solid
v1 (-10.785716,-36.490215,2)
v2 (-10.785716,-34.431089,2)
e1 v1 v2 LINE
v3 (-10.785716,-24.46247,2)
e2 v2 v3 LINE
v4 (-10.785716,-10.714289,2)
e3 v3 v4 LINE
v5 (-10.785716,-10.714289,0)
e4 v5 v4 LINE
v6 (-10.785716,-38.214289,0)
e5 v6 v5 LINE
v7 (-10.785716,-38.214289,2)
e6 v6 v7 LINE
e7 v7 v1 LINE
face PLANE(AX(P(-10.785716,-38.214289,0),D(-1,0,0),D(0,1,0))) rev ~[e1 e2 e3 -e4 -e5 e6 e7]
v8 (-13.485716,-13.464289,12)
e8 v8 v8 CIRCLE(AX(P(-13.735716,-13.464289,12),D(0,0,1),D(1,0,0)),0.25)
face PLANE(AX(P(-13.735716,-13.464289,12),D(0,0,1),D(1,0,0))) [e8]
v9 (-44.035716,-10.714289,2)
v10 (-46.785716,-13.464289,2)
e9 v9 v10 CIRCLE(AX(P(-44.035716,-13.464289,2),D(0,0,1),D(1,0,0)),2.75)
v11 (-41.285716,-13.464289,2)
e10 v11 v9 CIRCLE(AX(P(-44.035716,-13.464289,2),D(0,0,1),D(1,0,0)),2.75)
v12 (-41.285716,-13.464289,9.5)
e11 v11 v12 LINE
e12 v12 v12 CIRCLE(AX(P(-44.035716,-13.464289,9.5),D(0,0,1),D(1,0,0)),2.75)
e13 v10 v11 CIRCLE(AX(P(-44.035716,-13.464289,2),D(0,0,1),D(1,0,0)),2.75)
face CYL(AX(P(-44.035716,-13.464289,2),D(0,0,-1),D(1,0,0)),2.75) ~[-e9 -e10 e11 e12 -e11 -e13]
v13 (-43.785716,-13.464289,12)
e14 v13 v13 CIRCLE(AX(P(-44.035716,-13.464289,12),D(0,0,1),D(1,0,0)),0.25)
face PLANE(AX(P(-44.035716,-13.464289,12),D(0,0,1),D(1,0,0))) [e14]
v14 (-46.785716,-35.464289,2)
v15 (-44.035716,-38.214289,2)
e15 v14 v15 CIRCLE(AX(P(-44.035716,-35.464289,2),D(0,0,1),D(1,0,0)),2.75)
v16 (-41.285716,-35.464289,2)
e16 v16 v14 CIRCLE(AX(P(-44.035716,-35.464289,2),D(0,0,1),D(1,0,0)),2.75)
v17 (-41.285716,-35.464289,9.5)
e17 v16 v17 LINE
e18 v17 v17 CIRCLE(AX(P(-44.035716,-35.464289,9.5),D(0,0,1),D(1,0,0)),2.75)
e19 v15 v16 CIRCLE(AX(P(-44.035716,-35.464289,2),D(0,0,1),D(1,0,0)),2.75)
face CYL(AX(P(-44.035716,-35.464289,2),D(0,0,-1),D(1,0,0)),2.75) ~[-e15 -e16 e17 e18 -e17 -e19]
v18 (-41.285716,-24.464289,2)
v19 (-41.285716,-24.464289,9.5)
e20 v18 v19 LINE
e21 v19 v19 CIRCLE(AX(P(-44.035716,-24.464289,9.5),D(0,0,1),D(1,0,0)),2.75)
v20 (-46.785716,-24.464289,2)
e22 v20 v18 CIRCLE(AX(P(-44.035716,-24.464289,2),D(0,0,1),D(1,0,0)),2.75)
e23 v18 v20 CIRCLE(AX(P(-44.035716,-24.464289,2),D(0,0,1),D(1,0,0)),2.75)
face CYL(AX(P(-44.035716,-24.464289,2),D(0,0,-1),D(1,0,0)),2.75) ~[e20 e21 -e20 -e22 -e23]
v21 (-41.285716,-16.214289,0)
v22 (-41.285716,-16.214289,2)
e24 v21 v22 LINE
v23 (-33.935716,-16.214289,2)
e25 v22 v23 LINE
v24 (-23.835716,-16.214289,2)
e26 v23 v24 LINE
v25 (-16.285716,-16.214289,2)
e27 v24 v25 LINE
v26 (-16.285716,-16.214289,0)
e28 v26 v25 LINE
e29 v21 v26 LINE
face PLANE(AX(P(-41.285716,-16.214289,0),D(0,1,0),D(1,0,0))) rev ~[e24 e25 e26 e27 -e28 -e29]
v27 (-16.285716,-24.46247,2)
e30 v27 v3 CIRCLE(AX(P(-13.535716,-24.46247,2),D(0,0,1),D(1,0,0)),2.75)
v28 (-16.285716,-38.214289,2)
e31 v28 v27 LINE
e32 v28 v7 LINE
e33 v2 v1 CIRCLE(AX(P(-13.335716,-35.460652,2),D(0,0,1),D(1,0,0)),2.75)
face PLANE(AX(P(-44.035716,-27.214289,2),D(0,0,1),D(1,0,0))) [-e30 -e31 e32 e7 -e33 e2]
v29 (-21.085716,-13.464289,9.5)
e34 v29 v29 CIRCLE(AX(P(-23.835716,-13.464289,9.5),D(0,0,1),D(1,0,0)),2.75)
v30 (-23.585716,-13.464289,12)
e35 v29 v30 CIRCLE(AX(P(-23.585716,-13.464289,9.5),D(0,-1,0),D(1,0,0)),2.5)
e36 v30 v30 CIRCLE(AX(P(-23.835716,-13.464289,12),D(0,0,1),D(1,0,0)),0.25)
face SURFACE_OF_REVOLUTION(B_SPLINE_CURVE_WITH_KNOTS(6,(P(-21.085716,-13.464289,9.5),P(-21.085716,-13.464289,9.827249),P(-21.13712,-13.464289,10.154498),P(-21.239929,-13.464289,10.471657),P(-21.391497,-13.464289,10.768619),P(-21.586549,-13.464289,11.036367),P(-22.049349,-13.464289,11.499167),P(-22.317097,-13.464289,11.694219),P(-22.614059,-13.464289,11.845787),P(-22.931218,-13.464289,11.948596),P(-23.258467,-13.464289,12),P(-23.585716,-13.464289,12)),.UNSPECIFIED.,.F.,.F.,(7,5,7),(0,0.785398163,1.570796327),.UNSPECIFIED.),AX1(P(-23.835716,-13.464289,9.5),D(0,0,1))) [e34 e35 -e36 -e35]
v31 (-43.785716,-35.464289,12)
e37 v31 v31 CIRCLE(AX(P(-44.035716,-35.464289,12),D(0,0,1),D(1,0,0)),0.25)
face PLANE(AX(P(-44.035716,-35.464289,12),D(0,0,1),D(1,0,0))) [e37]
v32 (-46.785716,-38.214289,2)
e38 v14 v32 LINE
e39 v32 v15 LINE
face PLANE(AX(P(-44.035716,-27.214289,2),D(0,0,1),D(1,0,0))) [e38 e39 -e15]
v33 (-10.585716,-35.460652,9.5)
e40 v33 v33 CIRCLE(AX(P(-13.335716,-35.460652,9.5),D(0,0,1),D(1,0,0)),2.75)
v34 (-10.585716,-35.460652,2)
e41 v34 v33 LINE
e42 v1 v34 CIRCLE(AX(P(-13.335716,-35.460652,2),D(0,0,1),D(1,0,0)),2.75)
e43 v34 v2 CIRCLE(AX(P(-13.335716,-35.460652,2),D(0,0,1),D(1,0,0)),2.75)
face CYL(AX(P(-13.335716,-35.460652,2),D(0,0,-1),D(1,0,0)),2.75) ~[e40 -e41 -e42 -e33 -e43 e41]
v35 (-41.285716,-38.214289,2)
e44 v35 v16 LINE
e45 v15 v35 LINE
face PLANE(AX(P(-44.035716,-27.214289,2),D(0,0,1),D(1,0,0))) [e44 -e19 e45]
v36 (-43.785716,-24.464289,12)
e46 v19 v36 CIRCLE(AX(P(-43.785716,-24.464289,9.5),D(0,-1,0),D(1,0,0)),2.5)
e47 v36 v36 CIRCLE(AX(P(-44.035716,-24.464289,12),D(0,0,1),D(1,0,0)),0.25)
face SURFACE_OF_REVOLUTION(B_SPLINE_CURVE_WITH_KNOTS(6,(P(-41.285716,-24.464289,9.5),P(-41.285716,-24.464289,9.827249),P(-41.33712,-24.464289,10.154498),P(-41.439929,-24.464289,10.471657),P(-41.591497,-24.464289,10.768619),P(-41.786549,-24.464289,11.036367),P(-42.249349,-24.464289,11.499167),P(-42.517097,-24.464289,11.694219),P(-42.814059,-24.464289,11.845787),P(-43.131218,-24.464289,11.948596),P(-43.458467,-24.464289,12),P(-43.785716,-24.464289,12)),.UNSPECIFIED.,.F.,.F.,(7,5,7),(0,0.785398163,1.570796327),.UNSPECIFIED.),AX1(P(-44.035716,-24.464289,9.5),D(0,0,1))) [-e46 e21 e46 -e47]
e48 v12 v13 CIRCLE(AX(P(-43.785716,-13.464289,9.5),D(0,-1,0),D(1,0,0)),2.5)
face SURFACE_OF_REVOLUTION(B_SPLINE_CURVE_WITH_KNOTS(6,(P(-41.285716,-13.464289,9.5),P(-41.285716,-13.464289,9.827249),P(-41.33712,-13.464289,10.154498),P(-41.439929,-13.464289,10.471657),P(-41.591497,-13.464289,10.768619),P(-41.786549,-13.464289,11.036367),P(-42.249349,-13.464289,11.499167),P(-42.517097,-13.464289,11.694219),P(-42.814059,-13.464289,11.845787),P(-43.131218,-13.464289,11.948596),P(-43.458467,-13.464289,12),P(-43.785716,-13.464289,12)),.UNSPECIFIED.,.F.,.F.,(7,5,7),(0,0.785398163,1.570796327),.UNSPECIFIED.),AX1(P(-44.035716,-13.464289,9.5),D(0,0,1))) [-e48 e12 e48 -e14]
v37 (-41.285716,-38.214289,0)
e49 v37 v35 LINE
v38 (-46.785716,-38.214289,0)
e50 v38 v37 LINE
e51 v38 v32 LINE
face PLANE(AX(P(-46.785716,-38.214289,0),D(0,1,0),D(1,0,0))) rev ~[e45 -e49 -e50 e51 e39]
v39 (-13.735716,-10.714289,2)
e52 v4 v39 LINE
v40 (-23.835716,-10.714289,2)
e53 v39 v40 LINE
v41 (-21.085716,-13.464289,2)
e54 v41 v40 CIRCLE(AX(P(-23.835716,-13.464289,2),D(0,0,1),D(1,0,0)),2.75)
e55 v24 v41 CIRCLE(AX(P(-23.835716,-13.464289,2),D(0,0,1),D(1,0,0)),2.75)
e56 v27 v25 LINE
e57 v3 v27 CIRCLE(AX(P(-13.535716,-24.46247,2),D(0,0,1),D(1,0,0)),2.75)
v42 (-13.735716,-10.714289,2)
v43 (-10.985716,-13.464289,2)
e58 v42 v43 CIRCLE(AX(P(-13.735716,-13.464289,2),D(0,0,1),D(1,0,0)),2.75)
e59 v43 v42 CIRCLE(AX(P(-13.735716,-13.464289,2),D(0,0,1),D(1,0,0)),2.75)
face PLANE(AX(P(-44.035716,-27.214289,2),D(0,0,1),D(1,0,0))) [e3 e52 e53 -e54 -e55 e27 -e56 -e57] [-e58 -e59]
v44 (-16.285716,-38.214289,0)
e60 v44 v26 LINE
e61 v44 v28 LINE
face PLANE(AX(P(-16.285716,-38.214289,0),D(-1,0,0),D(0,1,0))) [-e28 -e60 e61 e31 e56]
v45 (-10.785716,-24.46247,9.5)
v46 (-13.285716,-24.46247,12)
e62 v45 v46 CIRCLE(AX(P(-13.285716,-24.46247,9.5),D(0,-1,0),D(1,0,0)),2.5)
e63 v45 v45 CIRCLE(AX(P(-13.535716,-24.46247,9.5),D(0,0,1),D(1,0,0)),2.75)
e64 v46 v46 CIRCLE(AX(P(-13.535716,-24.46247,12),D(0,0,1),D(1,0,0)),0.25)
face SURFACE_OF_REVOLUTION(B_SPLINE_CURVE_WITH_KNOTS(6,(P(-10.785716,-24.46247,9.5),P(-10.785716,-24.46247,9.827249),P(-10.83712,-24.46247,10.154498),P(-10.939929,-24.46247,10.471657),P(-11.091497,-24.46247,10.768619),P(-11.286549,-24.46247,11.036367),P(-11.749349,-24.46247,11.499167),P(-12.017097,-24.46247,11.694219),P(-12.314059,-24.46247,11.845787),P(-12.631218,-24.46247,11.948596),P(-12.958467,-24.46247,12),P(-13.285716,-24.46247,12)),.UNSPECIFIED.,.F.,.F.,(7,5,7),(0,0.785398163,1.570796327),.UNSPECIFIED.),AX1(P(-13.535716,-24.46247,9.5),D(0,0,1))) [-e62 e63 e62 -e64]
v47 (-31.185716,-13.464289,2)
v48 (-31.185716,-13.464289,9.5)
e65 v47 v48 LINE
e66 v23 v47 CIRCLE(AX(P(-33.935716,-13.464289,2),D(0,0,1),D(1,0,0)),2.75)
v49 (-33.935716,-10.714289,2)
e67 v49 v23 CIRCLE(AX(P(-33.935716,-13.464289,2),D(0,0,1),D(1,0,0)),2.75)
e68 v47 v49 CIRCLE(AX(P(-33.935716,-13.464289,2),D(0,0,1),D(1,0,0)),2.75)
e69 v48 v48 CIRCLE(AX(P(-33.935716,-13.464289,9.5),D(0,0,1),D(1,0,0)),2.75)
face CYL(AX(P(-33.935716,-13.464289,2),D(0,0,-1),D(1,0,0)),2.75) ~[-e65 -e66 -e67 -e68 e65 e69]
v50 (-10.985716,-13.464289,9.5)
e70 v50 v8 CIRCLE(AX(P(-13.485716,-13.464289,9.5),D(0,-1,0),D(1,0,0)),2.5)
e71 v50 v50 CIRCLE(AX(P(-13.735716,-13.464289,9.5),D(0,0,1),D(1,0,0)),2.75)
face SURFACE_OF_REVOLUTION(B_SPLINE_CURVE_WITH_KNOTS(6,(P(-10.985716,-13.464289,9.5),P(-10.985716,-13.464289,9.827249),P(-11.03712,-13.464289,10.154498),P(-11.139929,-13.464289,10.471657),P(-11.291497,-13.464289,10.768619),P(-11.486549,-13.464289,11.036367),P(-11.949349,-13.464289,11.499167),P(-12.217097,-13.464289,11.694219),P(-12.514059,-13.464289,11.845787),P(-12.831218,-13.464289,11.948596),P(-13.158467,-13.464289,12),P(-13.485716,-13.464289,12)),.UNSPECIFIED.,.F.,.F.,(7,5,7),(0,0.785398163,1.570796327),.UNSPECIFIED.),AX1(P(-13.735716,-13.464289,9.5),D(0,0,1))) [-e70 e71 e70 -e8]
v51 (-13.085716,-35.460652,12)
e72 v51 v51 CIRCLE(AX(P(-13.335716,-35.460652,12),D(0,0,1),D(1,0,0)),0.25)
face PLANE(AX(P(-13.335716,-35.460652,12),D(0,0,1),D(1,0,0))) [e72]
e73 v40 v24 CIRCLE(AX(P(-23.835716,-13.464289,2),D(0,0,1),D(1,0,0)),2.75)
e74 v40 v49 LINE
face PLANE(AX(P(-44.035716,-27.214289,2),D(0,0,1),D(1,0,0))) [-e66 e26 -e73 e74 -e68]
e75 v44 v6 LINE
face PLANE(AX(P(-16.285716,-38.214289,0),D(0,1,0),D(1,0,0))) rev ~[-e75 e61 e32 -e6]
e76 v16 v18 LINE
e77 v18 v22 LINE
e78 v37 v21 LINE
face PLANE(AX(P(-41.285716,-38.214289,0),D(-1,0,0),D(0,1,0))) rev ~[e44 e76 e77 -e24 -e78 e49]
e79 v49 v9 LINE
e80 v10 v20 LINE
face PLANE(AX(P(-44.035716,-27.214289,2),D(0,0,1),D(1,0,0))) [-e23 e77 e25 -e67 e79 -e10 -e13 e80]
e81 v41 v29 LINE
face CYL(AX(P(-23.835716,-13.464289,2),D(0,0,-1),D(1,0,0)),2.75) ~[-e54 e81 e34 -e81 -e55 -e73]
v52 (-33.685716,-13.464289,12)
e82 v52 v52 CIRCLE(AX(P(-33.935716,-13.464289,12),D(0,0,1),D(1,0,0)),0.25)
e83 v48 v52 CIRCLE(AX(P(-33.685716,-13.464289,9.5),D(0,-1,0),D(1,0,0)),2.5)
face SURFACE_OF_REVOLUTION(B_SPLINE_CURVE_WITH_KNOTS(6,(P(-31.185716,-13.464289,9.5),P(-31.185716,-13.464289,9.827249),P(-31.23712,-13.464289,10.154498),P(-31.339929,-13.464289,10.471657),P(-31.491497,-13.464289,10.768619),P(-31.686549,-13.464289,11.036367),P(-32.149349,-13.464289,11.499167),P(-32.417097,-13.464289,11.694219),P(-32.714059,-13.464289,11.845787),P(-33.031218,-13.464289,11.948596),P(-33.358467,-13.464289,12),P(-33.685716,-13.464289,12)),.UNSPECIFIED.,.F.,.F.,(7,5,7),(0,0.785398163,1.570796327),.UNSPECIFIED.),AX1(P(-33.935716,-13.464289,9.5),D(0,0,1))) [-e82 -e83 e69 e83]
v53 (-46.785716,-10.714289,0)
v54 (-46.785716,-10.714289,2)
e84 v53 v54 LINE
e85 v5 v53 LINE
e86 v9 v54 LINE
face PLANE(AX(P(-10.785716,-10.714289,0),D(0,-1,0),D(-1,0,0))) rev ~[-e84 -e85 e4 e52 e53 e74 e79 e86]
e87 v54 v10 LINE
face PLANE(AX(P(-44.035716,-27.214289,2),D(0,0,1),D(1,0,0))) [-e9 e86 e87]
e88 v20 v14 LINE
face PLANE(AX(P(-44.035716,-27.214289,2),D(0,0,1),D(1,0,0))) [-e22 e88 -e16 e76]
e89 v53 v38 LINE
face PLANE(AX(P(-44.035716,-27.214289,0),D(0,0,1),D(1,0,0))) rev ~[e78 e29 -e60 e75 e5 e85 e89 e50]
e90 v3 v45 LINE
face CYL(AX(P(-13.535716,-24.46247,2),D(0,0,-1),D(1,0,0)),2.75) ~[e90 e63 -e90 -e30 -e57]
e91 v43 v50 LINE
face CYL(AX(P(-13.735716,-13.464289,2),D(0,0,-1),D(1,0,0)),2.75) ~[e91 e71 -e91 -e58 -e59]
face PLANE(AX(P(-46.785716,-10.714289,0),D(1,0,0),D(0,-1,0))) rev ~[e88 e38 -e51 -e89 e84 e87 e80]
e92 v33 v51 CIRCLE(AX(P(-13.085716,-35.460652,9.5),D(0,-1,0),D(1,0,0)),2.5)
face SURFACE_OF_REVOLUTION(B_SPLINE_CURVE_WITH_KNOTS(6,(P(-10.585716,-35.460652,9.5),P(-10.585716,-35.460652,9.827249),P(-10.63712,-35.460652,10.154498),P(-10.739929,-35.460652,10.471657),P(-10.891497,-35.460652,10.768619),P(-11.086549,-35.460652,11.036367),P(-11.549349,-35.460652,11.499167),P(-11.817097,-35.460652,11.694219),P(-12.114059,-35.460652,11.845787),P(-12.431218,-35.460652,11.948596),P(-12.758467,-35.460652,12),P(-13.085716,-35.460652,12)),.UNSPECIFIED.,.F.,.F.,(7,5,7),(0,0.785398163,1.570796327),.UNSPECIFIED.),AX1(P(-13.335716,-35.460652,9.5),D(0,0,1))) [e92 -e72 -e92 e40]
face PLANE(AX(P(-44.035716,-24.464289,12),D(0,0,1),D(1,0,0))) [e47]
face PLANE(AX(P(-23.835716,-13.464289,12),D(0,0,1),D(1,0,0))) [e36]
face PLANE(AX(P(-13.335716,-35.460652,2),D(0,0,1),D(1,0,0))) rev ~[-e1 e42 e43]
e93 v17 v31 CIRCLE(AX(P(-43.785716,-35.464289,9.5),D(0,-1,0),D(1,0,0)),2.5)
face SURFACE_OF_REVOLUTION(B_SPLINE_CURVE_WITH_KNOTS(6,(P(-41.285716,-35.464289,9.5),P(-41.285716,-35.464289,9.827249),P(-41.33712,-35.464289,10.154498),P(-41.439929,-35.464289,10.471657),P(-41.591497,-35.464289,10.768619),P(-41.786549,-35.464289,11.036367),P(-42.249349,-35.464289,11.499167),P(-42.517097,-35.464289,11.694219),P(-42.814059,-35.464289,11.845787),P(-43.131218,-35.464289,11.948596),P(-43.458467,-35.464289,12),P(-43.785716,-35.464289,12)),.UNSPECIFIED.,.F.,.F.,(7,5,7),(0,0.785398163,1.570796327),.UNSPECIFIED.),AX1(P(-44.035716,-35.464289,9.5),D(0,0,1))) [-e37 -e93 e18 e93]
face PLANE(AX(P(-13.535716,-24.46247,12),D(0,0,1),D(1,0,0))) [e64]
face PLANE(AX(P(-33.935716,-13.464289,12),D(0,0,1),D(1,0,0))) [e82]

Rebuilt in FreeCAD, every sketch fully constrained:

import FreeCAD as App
import Part
import Sketcher
Q = App.Units.Quantity


def edges_at(feature, points):
    """Names of the edges that pass closest to the given points."""
    edges = feature.Shape.Edges
    near = lambda p: min(range(len(edges)), key=lambda i: edges[i].distToShape(Part.Vertex(*p))[0])
    return sorted({f"Edge{near(p) + 1}" for p in points})

doc = App.newDocument("Part")
body = doc.addObject("PartDesign::Body", "Body")

# Sketch on XY plane
sketch1 = body.newObject("Sketcher::SketchObject", "Sketch")
sketch1.AttachmentSupport = (doc.getObject("XY_Plane"), [""])
sketch1.MapMode = "FlatFace"
sketch1.addGeometry([
    Part.LineSegment(App.Vector(-47, -38, 0), App.Vector(-41, -38, 0)),  # 0
    Part.LineSegment(App.Vector(-41, -38, 0), App.Vector(-41, -16, 0)),  # 1
    Part.LineSegment(App.Vector(-41, -16, 0), App.Vector(-16, -16, 0)),  # 2
    Part.LineSegment(App.Vector(-16, -16, 0), App.Vector(-16, -38, 0)),  # 3
    Part.LineSegment(App.Vector(-16, -38, 0), App.Vector(-11, -38, 0)),  # 4
    Part.LineSegment(App.Vector(-11, -38, 0), App.Vector(-11, -11, 0)),  # 5
    Part.LineSegment(App.Vector(-11, -11, 0), App.Vector(-47, -11, 0)),  # 6
    Part.LineSegment(App.Vector(-47, -11, 0), App.Vector(-47, -38, 0)),  # 7
], False)
sketch1.addConstraint([
    Sketcher.Constraint("Coincident", 0, 2, 1, 1),
    Sketcher.Constraint("Coincident", 1, 2, 2, 1),
    Sketcher.Constraint("Coincident", 2, 2, 3, 1),
    Sketcher.Constraint("Coincident", 3, 2, 4, 1),
    Sketcher.Constraint("Coincident", 4, 2, 5, 1),
    Sketcher.Constraint("Coincident", 5, 2, 6, 1),
    Sketcher.Constraint("Coincident", 6, 2, 7, 1),
    Sketcher.Constraint("Coincident", 7, 2, 0, 1),
    Sketcher.Constraint("Horizontal", 0),
    Sketcher.Constraint("Vertical", 1),
    Sketcher.Constraint("Horizontal", 2),
    Sketcher.Constraint("Vertical", 3),
    Sketcher.Constraint("Horizontal", 4),
    Sketcher.Constraint("Vertical", 5),
    Sketcher.Constraint("Horizontal", 6),
    Sketcher.Constraint("Vertical", 7),
    Sketcher.Constraint("Horizontal", 0, 2, 3, 2),
    Sketcher.Constraint("Equal", 0, 4),
    Sketcher.Constraint("DistanceX", 2, 1, 2, 2, Q("25 mm")),
    Sketcher.Constraint("DistanceX", 6, 2, 6, 1, Q("36 mm")),
    Sketcher.Constraint("DistanceY", 1, 1, 1, 2, Q("22 mm")),
    Sketcher.Constraint("DistanceY", 5, 1, 5, 2, Q("27.5 mm")),
    Sketcher.Constraint("DistanceY", 0, 2, -1, 1, Q("38.214289 mm")),
    Sketcher.Constraint("DistanceX", 0, 2, -1, 1, Q("41.285716 mm")),
])
pad1 = body.newObject("PartDesign::Pad", "Pad")
pad1.Profile = sketch1
pad1.Length = 2

# Sketch on XY plane
sketch2 = body.newObject("Sketcher::SketchObject", "Sketch001")
sketch2.AttachmentSupport = (doc.getObject("XY_Plane"), [""])
sketch2.MapMode = "FlatFace"
sketch2.AttachmentOffset = App.Placement(App.Vector(0, 0, 2), App.Rotation())
sketch2.addGeometry([
    Part.Circle(App.Vector(-44, -35.5, 0), App.Vector(0, 0, 1), 2.8),  # 0
    Part.Circle(App.Vector(-44, -24.5, 0), App.Vector(0, 0, 1), 2.8),  # 1
    Part.Circle(App.Vector(-44, -13.5, 0), App.Vector(0, 0, 1), 2.8),  # 2
    Part.Circle(App.Vector(-33.9, -13.5, 0), App.Vector(0, 0, 1), 2.8),  # 3
    Part.Circle(App.Vector(-23.8, -13.5, 0), App.Vector(0, 0, 1), 2.8),  # 4
    Part.Circle(App.Vector(-13.7, -13.5, 0), App.Vector(0, 0, 1), 2.8),  # 5
    Part.Circle(App.Vector(-13.5, -24.5, 0), App.Vector(0, 0, 1), 2.8),  # 6
    Part.Circle(App.Vector(-13.3, -35.5, 0), App.Vector(0, 0, 1), 2.8),  # 7
], False)
sketch2.addConstraint([
    Sketcher.Constraint("Equal", 0, 1),
    Sketcher.Constraint("Equal", 1, 2),
    Sketcher.Constraint("Equal", 2, 3),
    Sketcher.Constraint("Equal", 3, 4),
    Sketcher.Constraint("Equal", 4, 5),
    Sketcher.Constraint("Equal", 5, 6),
    Sketcher.Constraint("Equal", 6, 7),
    Sketcher.Constraint("Horizontal", 2, 3, 3, 3),
    Sketcher.Constraint("Horizontal", 3, 3, 4, 3),
    Sketcher.Constraint("Horizontal", 4, 3, 5, 3),
    Sketcher.Constraint("Vertical", 0, 3, 1, 3),
    Sketcher.Constraint("Vertical", 1, 3, 2, 3),
    Sketcher.Constraint("Diameter", 0, Q("5.5 mm")),
    Sketcher.Constraint("DistanceY", 0, 3, 1, 3, Q("11 mm")),
    Sketcher.Constraint("DistanceY", 1, 3, 2, 3, Q("11 mm")),
    Sketcher.Constraint("DistanceX", 2, 3, 3, 3, Q("10.1 mm")),
    Sketcher.Constraint("DistanceX", 3, 3, 4, 3, Q("10.1 mm")),
    Sketcher.Constraint("DistanceX", 4, 3, 5, 3, Q("10.1 mm")),
    Sketcher.Constraint("DistanceX", 5, 3, 6, 3, Q("0.2 mm")),
    Sketcher.Constraint("DistanceX", 6, 3, 7, 3, Q("0.2 mm")),
    Sketcher.Constraint("DistanceY", 0, 3, -1, 1, Q("35.464289 mm")),
    Sketcher.Constraint("DistanceY", 6, 3, -1, 1, Q("24.46247 mm")),
    Sketcher.Constraint("DistanceX", 0, 3, -1, 1, Q("44.035716 mm")),
    Sketcher.Constraint("DistanceY", 7, 3, -1, 1, Q("35.460652 mm")),
])
pad2 = body.newObject("PartDesign::Pad", "Pad001")
pad2.Profile = sketch2
pad2.Length = 10
doc.recompute()

fillet = body.newObject("PartDesign::Fillet", "Fillet")
fillet.Base = (pad2, edges_at(pad2, [(-46.786, -35.464, 12)]))
fillet.Radius = 2.5
doc.recompute()

fillet2 = body.newObject("PartDesign::Fillet", "Fillet001")
fillet2.Base = (fillet, edges_at(fillet, [
    (-46.786, -24.464, 12),
    (-46.786, -13.464, 12),
    (-36.686, -13.464, 12),
    (-26.586, -13.464, 12),
    (-16.486, -13.464, 12),
    (-16.286, -24.462, 12),
    (-16.086, -35.461, 12),
]))
fillet2.Radius = 2.5

doc.recompute()
